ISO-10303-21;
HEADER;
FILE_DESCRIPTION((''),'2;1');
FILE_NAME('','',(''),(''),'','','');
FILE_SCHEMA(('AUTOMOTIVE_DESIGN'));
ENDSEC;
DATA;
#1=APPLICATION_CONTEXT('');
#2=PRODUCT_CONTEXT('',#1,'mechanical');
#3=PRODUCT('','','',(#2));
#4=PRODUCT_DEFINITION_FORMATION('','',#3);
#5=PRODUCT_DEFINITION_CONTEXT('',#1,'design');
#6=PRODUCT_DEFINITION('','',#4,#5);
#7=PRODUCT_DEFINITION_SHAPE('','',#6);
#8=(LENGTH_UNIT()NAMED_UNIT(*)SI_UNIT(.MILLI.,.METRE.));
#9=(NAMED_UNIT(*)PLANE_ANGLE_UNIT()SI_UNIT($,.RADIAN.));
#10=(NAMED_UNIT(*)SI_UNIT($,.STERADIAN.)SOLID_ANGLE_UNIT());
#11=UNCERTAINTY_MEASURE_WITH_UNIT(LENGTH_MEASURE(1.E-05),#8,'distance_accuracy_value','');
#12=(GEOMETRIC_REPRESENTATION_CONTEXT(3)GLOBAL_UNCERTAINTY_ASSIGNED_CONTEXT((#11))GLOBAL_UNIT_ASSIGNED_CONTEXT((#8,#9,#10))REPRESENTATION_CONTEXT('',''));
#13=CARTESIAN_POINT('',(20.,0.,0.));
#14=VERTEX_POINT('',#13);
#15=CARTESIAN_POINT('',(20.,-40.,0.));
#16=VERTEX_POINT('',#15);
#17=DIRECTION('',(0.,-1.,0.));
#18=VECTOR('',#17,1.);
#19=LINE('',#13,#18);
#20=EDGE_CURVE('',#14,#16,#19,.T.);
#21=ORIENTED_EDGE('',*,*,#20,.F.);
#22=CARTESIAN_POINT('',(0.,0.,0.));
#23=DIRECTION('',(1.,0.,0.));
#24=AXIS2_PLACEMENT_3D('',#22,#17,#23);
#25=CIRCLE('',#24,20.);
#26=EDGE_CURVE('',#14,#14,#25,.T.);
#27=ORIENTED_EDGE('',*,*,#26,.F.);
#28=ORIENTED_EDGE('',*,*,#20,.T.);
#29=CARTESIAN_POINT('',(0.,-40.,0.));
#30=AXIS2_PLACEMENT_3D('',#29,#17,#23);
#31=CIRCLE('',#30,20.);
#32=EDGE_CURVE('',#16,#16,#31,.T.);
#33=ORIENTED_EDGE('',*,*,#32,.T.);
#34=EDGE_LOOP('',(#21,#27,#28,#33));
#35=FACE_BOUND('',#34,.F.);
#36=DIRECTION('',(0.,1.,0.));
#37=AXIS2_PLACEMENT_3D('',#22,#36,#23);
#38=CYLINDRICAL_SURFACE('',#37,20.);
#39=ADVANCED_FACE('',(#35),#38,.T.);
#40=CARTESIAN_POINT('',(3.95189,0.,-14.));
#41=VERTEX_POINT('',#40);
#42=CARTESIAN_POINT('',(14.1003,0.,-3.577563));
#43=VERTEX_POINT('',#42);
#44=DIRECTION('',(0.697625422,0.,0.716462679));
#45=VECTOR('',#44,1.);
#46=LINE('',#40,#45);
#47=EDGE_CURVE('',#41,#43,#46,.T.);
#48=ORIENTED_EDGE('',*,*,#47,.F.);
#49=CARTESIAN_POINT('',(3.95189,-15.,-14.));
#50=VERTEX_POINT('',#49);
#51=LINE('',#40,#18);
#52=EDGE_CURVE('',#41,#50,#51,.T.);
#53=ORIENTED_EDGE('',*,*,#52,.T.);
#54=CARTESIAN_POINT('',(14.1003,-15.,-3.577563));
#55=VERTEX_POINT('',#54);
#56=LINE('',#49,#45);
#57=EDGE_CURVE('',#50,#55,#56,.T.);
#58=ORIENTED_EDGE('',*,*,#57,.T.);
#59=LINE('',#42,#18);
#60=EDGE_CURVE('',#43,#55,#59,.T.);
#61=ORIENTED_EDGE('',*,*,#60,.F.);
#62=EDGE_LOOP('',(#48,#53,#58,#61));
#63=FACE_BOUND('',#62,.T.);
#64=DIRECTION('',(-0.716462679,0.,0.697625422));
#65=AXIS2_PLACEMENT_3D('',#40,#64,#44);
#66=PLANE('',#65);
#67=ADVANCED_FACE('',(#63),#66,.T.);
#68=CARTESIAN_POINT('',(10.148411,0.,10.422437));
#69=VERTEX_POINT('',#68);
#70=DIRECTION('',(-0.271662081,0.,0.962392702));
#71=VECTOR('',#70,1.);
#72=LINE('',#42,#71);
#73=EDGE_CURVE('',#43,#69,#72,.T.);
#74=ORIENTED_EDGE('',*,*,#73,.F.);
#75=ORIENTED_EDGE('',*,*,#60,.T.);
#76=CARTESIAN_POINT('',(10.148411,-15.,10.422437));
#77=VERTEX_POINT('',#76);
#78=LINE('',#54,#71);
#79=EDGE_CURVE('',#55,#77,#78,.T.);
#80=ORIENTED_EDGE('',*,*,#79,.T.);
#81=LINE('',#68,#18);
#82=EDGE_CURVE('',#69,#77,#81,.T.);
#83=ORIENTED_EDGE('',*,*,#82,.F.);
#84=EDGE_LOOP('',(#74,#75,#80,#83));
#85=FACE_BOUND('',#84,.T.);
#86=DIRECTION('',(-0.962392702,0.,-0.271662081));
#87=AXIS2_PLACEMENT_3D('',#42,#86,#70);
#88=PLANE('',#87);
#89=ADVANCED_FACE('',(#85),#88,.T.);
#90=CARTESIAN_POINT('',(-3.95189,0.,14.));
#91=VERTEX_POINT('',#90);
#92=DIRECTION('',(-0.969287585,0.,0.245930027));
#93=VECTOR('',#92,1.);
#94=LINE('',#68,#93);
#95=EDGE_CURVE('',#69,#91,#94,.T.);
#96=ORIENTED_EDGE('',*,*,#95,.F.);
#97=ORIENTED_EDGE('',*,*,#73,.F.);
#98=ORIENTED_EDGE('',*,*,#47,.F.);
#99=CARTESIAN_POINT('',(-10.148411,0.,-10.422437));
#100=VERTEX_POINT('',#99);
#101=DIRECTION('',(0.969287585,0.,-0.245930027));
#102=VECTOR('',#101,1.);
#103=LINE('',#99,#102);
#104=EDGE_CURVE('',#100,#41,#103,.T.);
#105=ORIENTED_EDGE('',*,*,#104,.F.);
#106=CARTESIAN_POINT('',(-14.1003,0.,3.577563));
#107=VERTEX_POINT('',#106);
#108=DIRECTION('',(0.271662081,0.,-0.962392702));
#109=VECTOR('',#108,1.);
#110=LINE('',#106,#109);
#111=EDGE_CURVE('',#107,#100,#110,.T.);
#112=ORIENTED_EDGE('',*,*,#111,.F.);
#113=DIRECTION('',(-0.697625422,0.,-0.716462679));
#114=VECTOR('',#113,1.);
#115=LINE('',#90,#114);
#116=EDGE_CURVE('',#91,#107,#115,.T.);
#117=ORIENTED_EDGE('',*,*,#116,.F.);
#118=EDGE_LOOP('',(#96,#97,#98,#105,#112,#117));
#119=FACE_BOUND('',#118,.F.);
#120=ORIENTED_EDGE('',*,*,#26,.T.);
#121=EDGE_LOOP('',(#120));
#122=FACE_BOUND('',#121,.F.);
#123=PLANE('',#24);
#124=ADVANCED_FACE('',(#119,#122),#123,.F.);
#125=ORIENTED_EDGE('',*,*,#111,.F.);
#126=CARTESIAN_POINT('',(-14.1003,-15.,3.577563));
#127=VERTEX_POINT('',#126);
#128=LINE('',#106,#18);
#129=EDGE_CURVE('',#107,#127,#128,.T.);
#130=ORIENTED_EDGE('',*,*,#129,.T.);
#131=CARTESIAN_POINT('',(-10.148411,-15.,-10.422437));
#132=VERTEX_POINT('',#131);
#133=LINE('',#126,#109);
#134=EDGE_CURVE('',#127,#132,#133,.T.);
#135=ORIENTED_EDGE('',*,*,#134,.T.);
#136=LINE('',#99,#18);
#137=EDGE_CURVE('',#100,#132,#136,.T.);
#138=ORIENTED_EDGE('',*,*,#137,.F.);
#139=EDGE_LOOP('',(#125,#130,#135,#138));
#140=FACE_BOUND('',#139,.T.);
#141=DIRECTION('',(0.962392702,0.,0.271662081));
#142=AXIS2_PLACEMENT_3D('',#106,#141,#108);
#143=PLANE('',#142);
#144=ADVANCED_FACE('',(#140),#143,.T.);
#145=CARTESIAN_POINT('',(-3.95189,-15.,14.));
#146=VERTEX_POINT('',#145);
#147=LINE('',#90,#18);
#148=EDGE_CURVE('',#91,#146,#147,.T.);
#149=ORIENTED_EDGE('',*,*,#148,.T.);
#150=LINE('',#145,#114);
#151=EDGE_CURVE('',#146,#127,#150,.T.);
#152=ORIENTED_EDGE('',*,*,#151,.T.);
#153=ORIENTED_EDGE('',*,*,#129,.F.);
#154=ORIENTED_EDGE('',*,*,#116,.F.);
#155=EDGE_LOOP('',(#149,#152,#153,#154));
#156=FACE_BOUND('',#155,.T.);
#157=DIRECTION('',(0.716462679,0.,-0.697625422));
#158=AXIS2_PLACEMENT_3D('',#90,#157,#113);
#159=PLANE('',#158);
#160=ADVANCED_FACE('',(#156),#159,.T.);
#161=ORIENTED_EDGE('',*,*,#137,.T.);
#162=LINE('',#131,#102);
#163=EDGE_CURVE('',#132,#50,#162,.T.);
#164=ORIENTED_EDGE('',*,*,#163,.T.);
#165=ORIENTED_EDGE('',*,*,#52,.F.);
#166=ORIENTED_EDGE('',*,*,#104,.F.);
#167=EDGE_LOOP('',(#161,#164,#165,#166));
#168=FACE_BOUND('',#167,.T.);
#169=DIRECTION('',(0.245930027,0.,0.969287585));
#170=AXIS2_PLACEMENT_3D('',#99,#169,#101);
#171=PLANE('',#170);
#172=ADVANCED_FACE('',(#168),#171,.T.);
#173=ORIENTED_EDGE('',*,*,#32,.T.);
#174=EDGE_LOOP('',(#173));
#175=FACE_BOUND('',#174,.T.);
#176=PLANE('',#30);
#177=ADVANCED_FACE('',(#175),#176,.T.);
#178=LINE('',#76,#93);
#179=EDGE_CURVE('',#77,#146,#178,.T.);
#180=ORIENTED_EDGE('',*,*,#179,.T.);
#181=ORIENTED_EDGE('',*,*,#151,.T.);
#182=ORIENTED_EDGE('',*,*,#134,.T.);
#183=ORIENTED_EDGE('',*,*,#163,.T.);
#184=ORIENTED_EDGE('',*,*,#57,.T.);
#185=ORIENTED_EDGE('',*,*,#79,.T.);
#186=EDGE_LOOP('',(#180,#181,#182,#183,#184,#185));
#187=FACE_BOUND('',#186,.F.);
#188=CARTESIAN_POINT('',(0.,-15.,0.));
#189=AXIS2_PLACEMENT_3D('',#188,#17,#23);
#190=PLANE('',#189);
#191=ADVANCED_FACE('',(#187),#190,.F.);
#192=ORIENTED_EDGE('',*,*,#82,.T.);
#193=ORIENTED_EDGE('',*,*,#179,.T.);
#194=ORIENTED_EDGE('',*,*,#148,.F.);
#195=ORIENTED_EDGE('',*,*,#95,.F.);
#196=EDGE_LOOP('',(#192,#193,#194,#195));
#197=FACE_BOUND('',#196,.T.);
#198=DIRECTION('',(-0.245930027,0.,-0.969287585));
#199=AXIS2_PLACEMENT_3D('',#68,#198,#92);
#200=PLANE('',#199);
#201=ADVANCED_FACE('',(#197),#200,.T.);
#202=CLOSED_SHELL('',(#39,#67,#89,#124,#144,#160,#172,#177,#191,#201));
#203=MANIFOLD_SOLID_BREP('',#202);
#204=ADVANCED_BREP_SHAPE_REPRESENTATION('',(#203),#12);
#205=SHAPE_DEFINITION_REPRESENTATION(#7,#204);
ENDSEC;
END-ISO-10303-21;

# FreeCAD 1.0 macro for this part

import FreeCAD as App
import Part
import Sketcher

doc = App.newDocument("Part")
body = doc.addObject("PartDesign::Body", "Body")

# Sketch on XZ plane
sketch1 = body.newObject("Sketcher::SketchObject", "Sketch")
sketch1.AttachmentSupport = (doc.getObject("XZ_Plane"), [""])
sketch1.MapMode = "FlatFace"
sketch1.addGeometry(Part.Circle(App.Vector(0, 0, 0), App.Vector(0, 0, 1), 20), False)
sketch1.addConstraint(Sketcher.Constraint("Coincident", 0, 3, -1, 1))
sketch1.addConstraint(Sketcher.Constraint("Diameter", 0, 40.0))
pad1 = body.newObject("PartDesign::Pad", "Pad")
pad1.Profile = sketch1
pad1.Length = 40

# Sketch on XZ plane
sketch2 = body.newObject("Sketcher::SketchObject", "Sketch001")
sketch2.AttachmentSupport = (doc.getObject("XZ_Plane"), [""])
sketch2.MapMode = "FlatFace"
sketch2.addGeometry(Part.LineSegment(App.Vector(4, -14, 0), App.Vector(14, -4, 0)), False)
sketch2.addGeometry(Part.LineSegment(App.Vector(14, -4, 0), App.Vector(10, 10, 0)), False)
sketch2.addGeometry(Part.LineSegment(App.Vector(10, 10, 0), App.Vector(-4, 14, 0)), False)
sketch2.addGeometry(Part.LineSegment(App.Vector(-4, 14, 0), App.Vector(-14, 4, 0)), False)
sketch2.addGeometry(Part.LineSegment(App.Vector(-14, 4, 0), App.Vector(-10, -10, 0)), False)
sketch2.addGeometry(Part.LineSegment(App.Vector(-10, -10, 0), App.Vector(4, -14, 0)), False)
sketch2.addConstraint(Sketcher.Constraint("Coincident", 0, 2, 1, 1))
sketch2.addConstraint(Sketcher.Constraint("Coincident", 1, 2, 2, 1))
sketch2.addConstraint(Sketcher.Constraint("Coincident", 2, 2, 3, 1))
sketch2.addConstraint(Sketcher.Constraint("Coincident", 3, 2, 4, 1))
sketch2.addConstraint(Sketcher.Constraint("Coincident", 4, 2, 5, 1))
sketch2.addConstraint(Sketcher.Constraint("Coincident", 5, 2, 0, 1))
sketch2.addConstraint(Sketcher.Constraint("Symmetric", 0, 2, 3, 2, -1, 1))
sketch2.addConstraint(Sketcher.Constraint("Symmetric", 1, 2, 4, 2, -1, 1))
sketch2.addConstraint(Sketcher.Constraint("Symmetric", 2, 2, 5, 2, -1, 1))
sketch2.addConstraint(Sketcher.Constraint("Equal", 0, 1))
sketch2.addConstraint(Sketcher.Constraint("Equal", 1, 2))
sketch2.addConstraint(Sketcher.Constraint("DistanceY", -1, 1, 2, 2, 14.0))
sketch2.addConstraint(Sketcher.Constraint("DistanceY", 0, 2, 1, 2, 14.0))
sketch2.addConstraint(Sketcher.Constraint("DistanceX", -1, 1, 0, 2, 14.1003))
sketch2.addConstraint(Sketcher.Constraint("DistanceX", 2, 2, 1, 2, 14.100301))
pocket1 = body.newObject("PartDesign::Pocket", "Pocket")
pocket1.Profile = sketch2
pocket1.Length = 15
pocket1.Reversed = True

doc.recompute()
